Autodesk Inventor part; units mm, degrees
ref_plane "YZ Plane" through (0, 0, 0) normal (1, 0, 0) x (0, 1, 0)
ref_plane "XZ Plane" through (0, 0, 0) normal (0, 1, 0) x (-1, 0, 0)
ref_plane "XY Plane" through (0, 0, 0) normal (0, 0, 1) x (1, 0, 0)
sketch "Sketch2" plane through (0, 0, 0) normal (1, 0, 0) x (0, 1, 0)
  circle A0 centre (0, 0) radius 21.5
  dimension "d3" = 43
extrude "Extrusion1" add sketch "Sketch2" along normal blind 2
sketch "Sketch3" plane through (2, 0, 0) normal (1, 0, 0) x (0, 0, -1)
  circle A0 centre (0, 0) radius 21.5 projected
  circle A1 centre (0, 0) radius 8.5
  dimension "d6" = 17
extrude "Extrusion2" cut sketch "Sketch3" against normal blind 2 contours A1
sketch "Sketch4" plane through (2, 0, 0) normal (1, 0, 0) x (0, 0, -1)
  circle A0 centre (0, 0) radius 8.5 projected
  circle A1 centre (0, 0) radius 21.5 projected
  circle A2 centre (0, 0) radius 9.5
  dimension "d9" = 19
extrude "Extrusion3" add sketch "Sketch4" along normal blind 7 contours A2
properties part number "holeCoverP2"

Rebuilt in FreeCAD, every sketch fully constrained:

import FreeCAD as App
import Part
import Sketcher
Q = App.Units.Quantity

doc = App.newDocument("Part")
params = doc.addObject("Spreadsheet::Sheet", "Params")
for row, (alias, value) in enumerate([
    ("sketch1_diameter", "43 mm"),
    ("pad1_length", "2 mm"),
    ("sketch2_diameter", "17 mm"),
    ("pocket1_length", "2 mm"),
    ("sketch3_diameter", "19 mm"),
    ("sketch3_diameter2", "17 mm"),
    ("pad2_length", "7 mm"),
], start=1):
    params.set(f"A{row}", alias)
    params.set(f"B{row}", "=" + value)
    params.setAlias(f"B{row}", alias)

body = doc.addObject("PartDesign::Body", "Body")

# Sketch on YZ plane
sketch1 = doc.addObject("Sketcher::SketchObject", "Sketch")
body.addObject(sketch1)
sketch1.AttachmentSupport = (doc.YZ_Plane, [""])
sketch1.MapMode = "FlatFace"
sketch1.addGeometry(Part.Circle(App.Vector(0, 0, 0), App.Vector(0, 0, 1), 22), False)
sketch1.addConstraint(Sketcher.Constraint("Coincident", 0, 3, -1, 1))
sketch1.addConstraint(Sketcher.Constraint("Diameter", 0, Q("43 mm")))
sketch1.setExpression("Constraints[1]", "Params.sketch1_diameter")
pad1 = doc.addObject("PartDesign::Pad", "Pad")
body.addObject(pad1)
pad1.Profile = sketch1
pad1.setExpression("Length", "Params.pad1_length")

# Sketch on YZ plane
sketch2 = doc.addObject("Sketcher::SketchObject", "Sketch001")
body.addObject(sketch2)
sketch2.AttachmentSupport = (doc.YZ_Plane, [""])
sketch2.MapMode = "FlatFace"
sketch2.AttachmentOffset = App.Placement(App.Vector(0, 0, 2), App.Rotation())
sketch2.addGeometry(Part.Circle(App.Vector(0, 0, 0), App.Vector(0, 0, 1), 8), False)
sketch2.addConstraint(Sketcher.Constraint("Coincident", 0, 3, -1, 1))
sketch2.addConstraint(Sketcher.Constraint("Diameter", 0, Q("17 mm")))
sketch2.setExpression("Constraints[1]", "Params.sketch2_diameter")
pocket1 = doc.addObject("PartDesign::Pocket", "Pocket")
body.addObject(pocket1)
pocket1.Profile = sketch2
pocket1.setExpression("Length", "Params.pocket1_length")

# Sketch on YZ plane
sketch3 = doc.addObject("Sketcher::SketchObject", "Sketch002")
body.addObject(sketch3)
sketch3.AttachmentSupport = (doc.YZ_Plane, [""])
sketch3.MapMode = "FlatFace"
sketch3.AttachmentOffset = App.Placement(App.Vector(0, 0, 2), App.Rotation())
sketch3.addGeometry(Part.Circle(App.Vector(0, 0, 0), App.Vector(0, 0, 1), 10), False)
sketch3.addGeometry(Part.Circle(App.Vector(0, 0, 0), App.Vector(0, 0, 1), 8), False)
sketch3.addConstraint(Sketcher.Constraint("Coincident", 0, 3, -1, 1))
sketch3.addConstraint(Sketcher.Constraint("Coincident", 1, 3, -1, 1))
sketch3.addConstraint(Sketcher.Constraint("Diameter", 0, Q("19 mm")))
sketch3.addConstraint(Sketcher.Constraint("Diameter", 1, Q("17 mm")))
sketch3.setExpression("Constraints[2]", "Params.sketch3_diameter")
sketch3.setExpression("Constraints[3]", "Params.sketch3_diameter2")
pad2 = doc.addObject("PartDesign::Pad", "Pad001")
body.addObject(pad2)
pad2.Profile = sketch3
pad2.setExpression("Length", "Params.pad2_length")

doc.recompute()
